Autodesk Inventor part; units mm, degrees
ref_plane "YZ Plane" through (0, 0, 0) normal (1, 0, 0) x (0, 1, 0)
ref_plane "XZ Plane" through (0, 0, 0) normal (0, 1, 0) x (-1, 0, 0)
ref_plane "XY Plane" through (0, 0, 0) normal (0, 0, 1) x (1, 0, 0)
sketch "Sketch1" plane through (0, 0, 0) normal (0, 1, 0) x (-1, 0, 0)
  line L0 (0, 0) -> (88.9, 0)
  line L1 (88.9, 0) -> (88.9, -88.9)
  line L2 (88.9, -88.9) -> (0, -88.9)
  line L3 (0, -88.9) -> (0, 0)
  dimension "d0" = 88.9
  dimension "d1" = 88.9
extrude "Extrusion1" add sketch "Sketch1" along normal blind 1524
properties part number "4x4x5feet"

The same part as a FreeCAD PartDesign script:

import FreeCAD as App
import Part
import Sketcher
Q = App.Units.Quantity


def add_polygon(sketch, points):
    """Adds a closed chain of lines whose ends are joined by coincident constraints."""
    first, n = sketch.GeometryCount, len(points)
    for a, b in zip(points, points[1:] + points[:1]):
        sketch.addGeometry(Part.LineSegment(App.Vector(*a, 0), App.Vector(*b, 0)), False)
    for i in range(n):
        sketch.addConstraint(Sketcher.Constraint("Coincident", first + i, 2, first + (i + 1) % n, 1))

doc = App.newDocument("Part")
body = doc.addObject("PartDesign::Body", "Body")

sketch1 = doc.addObject("Sketcher::SketchObject", "Sketch")
body.addObject(sketch1)
sketch1.AttachmentSupport = (doc.XZ_Plane, [""])
sketch1.MapMode = "FlatFace"
add_polygon(sketch1, [(-89, 0), (0, 0), (0, -89), (-89, -89)])
sketch1.addConstraint([
    Sketcher.Constraint("Horizontal", 0),
    Sketcher.Constraint("Vertical", 1),
    Sketcher.Constraint("Horizontal", 2),
    Sketcher.Constraint("Vertical", 3),
    Sketcher.Constraint("Coincident", 0, 2, -1, 1),
    Sketcher.Constraint("Equal", 2, 1),
    Sketcher.Constraint("DistanceX", 0, 1, 0, 2, Q("3.5 in")),
])
pad1 = doc.addObject("PartDesign::Pad", "Pad")
body.addObject(pad1)
pad1.Profile = sketch1
pad1.Length = Q("60 in")
pad1.Reversed = True

doc.recompute()
